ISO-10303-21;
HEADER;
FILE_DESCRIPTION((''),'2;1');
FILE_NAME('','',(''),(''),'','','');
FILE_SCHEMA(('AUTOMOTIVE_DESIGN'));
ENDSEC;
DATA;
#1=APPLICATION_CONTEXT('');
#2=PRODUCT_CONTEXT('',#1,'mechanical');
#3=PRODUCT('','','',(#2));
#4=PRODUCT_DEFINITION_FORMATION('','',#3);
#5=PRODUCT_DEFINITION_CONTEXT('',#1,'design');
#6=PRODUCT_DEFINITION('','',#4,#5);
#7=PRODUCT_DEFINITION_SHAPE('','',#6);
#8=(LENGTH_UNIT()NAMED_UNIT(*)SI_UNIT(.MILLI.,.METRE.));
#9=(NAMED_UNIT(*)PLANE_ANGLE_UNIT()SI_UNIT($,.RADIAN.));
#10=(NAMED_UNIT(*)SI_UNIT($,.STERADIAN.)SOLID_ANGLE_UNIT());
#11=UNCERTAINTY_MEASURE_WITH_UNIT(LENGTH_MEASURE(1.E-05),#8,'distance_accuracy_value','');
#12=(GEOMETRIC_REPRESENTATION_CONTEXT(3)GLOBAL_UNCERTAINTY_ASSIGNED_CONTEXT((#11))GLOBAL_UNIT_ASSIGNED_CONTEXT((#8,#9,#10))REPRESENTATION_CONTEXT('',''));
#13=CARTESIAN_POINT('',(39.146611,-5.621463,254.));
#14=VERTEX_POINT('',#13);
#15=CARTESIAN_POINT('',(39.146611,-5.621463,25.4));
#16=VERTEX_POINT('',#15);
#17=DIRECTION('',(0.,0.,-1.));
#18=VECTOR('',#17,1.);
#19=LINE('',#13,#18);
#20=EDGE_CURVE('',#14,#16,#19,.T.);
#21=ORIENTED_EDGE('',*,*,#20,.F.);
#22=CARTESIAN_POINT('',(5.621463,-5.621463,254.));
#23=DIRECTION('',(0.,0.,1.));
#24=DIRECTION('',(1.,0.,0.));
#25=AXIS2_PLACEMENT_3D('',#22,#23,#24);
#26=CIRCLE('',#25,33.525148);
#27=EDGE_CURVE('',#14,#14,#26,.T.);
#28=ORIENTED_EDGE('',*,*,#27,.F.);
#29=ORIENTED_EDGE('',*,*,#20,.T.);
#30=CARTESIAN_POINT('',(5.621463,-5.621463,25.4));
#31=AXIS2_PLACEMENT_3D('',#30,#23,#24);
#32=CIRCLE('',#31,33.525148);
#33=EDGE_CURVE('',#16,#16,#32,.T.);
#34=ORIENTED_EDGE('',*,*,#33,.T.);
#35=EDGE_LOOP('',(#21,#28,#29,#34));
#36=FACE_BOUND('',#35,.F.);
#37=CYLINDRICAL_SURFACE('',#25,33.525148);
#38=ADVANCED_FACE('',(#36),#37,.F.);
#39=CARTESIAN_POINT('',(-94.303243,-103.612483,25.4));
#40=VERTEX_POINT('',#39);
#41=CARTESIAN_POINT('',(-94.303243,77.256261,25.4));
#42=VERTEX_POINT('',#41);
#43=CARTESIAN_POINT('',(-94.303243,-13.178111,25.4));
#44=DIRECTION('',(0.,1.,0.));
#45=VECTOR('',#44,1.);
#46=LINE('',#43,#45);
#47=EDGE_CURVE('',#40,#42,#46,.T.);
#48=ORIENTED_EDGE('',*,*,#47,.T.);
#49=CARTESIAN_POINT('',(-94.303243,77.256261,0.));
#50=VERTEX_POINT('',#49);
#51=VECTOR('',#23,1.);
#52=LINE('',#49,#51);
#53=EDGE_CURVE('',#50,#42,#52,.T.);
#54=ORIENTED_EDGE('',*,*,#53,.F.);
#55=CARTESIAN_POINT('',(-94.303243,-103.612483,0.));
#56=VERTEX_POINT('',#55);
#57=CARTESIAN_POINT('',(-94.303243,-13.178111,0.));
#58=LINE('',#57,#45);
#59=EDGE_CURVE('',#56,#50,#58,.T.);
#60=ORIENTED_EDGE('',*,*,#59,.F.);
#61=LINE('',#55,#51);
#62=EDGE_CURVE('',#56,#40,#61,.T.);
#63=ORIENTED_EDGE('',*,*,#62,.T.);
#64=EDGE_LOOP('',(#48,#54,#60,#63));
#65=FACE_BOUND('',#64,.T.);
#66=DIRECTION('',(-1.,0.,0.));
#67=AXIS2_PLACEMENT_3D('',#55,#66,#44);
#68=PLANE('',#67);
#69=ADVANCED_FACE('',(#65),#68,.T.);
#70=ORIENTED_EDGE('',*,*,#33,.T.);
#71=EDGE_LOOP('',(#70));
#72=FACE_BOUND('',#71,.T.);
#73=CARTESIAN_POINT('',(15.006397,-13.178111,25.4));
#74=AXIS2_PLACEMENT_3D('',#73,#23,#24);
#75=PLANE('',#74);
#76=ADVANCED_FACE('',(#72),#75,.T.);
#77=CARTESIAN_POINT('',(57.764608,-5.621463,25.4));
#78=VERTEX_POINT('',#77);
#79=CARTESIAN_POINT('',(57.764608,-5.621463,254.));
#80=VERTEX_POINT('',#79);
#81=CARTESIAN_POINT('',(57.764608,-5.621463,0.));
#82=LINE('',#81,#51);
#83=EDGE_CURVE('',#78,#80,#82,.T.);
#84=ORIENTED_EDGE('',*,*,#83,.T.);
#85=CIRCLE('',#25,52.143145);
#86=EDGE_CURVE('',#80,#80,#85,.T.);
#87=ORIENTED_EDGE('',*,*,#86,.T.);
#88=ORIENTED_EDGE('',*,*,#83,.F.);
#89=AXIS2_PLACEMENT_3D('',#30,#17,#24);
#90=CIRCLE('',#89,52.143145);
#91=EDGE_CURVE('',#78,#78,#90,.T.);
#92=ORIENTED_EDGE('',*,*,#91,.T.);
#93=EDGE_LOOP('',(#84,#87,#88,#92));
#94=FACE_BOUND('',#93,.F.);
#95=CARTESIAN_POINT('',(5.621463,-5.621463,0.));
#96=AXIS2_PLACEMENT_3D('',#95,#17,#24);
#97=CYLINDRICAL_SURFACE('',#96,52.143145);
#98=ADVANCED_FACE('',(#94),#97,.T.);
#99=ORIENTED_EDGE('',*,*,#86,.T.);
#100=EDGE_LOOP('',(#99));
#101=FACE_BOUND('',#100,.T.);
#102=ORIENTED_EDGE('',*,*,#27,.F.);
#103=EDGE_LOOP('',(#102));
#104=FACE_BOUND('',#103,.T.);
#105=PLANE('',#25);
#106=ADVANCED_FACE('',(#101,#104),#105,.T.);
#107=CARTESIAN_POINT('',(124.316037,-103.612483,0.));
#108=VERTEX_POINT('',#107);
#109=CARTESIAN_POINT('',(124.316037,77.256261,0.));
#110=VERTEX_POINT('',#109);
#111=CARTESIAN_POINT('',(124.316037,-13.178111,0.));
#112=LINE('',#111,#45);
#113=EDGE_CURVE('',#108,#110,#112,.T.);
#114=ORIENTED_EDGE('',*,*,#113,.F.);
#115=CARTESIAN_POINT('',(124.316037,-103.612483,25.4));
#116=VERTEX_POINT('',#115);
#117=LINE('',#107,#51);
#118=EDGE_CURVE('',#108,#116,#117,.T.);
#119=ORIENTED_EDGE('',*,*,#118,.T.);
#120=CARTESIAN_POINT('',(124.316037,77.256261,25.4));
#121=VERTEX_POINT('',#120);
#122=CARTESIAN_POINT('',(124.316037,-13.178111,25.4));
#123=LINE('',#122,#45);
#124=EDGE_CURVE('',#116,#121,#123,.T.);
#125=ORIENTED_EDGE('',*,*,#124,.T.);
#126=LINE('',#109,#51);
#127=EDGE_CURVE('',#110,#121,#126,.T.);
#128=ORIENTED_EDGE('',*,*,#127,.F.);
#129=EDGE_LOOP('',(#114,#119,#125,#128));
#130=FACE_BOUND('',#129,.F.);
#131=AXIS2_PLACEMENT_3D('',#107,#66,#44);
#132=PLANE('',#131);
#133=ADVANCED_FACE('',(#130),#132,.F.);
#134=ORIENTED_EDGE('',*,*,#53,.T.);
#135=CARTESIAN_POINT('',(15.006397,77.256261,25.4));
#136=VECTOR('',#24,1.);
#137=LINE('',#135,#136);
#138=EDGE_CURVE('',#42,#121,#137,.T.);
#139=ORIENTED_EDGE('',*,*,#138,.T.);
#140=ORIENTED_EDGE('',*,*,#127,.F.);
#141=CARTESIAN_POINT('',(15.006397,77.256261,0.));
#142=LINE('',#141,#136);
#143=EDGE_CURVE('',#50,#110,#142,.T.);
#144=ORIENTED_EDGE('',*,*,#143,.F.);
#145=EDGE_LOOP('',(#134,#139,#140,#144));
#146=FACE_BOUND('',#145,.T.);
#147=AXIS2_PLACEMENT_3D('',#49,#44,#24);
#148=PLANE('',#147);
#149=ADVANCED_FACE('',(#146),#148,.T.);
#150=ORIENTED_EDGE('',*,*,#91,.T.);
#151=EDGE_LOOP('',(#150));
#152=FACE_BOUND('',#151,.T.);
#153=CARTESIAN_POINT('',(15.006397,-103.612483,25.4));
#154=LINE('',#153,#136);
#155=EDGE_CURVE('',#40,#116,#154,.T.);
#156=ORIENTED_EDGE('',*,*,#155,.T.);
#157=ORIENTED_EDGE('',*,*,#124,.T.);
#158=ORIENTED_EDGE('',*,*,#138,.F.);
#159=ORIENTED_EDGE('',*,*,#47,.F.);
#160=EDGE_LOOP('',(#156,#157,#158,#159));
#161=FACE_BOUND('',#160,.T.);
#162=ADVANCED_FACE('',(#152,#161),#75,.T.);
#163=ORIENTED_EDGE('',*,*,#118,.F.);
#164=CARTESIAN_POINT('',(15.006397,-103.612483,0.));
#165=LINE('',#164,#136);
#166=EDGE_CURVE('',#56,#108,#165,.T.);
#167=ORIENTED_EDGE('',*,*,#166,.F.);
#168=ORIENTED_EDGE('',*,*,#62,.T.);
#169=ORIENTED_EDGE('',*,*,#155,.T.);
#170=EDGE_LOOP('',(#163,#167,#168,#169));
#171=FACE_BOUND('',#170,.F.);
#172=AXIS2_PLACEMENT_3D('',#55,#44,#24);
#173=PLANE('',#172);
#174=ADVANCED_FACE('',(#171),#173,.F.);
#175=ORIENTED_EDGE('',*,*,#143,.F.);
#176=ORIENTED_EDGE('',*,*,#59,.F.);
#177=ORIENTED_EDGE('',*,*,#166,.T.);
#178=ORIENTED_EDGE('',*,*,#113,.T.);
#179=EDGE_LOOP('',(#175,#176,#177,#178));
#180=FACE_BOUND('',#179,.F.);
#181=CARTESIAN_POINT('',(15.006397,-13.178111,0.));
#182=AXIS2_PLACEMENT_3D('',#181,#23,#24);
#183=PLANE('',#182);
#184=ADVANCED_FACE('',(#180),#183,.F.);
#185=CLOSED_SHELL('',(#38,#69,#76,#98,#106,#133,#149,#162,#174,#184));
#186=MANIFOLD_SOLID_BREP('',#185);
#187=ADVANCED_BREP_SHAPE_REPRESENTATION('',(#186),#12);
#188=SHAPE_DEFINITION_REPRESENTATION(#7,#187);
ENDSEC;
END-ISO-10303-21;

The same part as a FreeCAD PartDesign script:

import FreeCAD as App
import Part
import Sketcher

V = App.Vector
Q = App.Units.Quantity

doc = App.newDocument("Part")
params = doc.addObject("Spreadsheet::Sheet", "Params")
for row, (alias, value) in enumerate([
    ("pad1_length", "10 in"),
    ("pad2_length", "1 in"),
], start=1):
    params.set(f"A{row}", alias)
    params.set(f"B{row}", "=" + value)
    params.setAlias(f"B{row}", alias)

body = doc.addObject("PartDesign::Body", "Body")

# Sketch on XY plane
sketch1 = body.newObject("Sketcher::SketchObject", "Sketch")
sketch1.AttachmentSupport = (doc.getObject("XY_Plane"), [""])
sketch1.MapMode = "FlatFace"
sketch1.addGeometry(Part.Circle(V(6, -6, 0), V(0, 0, 1), 52), False)
sketch1.addConstraint(Sketcher.Constraint("Diameter", 0, Q("104.28629 mm")))
sketch1.addConstraint(Sketcher.Constraint("DistanceX", -1, 1, 0, 3, Q("5.621463 mm")))
sketch1.addConstraint(Sketcher.Constraint("DistanceY", 0, 3, -1, 1, Q("5.621463 mm")))
pad1 = body.newObject("PartDesign::Pad", "Pad")
pad1.Profile = sketch1
pad1.setExpression("Length", "Params.pad1_length")

# Sketch on XY plane
sketch2 = body.newObject("Sketcher::SketchObject", "Sketch001")
sketch2.AttachmentSupport = (doc.getObject("XY_Plane"), [""])
sketch2.MapMode = "FlatFace"
sketch2.AttachmentOffset = App.Placement(V(0, 0, 10 * 25.4), App.Rotation())
sketch2.addGeometry(Part.Circle(V(6, -6, 0), V(0, 0, 1), 34), False)
sketch2.addConstraint(Sketcher.Constraint("Diameter", 0, Q("67.050296 mm")))
sketch2.addConstraint(Sketcher.Constraint("DistanceX", -1, 1, 0, 3, Q("5.621463 mm")))
sketch2.addConstraint(Sketcher.Constraint("DistanceY", 0, 3, -1, 1, Q("5.621463 mm")))
pocket1 = body.newObject("PartDesign::Pocket", "Pocket")
pocket1.Profile = sketch2
pocket1.Type = "ThroughAll"

# Sketch on XY plane
sketch3 = body.newObject("Sketcher::SketchObject", "Sketch002")
sketch3.AttachmentSupport = (doc.getObject("XY_Plane"), [""])
sketch3.MapMode = "FlatFace"
sketch3.addGeometry(Part.LineSegment(V(-94, 77, 0), V(-94, -104, 0)), False)
sketch3.addGeometry(Part.LineSegment(V(-94, -104, 0), V(124, -104, 0)), False)
sketch3.addGeometry(Part.LineSegment(V(124, -104, 0), V(124, 77, 0)), False)
sketch3.addGeometry(Part.LineSegment(V(124, 77, 0), V(-94, 77, 0)), False)
sketch3.addConstraint(Sketcher.Constraint("Coincident", 0, 2, 1, 1))
sketch3.addConstraint(Sketcher.Constraint("Coincident", 1, 2, 2, 1))
sketch3.addConstraint(Sketcher.Constraint("Coincident", 2, 2, 3, 1))
sketch3.addConstraint(Sketcher.Constraint("Coincident", 3, 2, 0, 1))
sketch3.addConstraint(Sketcher.Constraint("Vertical", 0))
sketch3.addConstraint(Sketcher.Constraint("Horizontal", 1))
sketch3.addConstraint(Sketcher.Constraint("Vertical", 2))
sketch3.addConstraint(Sketcher.Constraint("Horizontal", 3))
sketch3.addConstraint(Sketcher.Constraint("DistanceX", 1, 1, 1, 2, Q("218.61928 mm")))
sketch3.addConstraint(Sketcher.Constraint("DistanceY", 0, 2, 0, 1, Q("180.868745 mm")))
sketch3.addConstraint(Sketcher.Constraint("DistanceY", -1, 1, 2, 2, Q("77.256261 mm")))
sketch3.addConstraint(Sketcher.Constraint("DistanceX", 0, 2, -1, 1, Q("94.303243 mm")))
pad2 = body.newObject("PartDesign::Pad", "Pad001")
pad2.Profile = sketch3
pad2.setExpression("Length", "Params.pad2_length")

doc.recompute()
